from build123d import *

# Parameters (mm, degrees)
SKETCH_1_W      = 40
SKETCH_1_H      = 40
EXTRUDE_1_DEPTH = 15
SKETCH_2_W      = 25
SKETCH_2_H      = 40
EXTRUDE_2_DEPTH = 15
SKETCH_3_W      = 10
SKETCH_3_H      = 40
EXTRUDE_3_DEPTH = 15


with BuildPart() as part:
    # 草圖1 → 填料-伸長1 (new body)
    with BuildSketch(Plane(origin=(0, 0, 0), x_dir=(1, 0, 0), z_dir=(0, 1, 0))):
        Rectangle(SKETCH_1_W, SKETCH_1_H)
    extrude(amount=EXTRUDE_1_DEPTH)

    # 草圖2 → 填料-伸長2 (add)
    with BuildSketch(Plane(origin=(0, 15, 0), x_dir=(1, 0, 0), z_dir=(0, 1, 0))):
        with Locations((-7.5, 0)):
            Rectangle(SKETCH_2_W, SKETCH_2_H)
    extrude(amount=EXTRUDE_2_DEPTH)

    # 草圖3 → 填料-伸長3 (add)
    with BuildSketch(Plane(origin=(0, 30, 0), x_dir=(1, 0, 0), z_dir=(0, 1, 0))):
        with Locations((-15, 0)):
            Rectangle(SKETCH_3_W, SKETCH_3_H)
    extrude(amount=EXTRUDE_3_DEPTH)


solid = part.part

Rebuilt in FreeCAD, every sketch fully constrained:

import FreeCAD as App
import Part
import Sketcher

doc = App.newDocument("Part")
body = doc.addObject("PartDesign::Body", "Body")

# Sketch on XZ plane
sketch1 = doc.addObject("Sketcher::SketchObject", "Sketch")
body.addObject(sketch1)
sketch1.AttachmentSupport = (doc.XZ_Plane, [""])
sketch1.MapMode = "FlatFace"
sketch1.addGeometry(Part.LineSegment(App.Vector(-20, -20, 0), App.Vector(-20, 20, 0)), False)
sketch1.addGeometry(Part.LineSegment(App.Vector(-20, 20, 0), App.Vector(20, 20, 0)), False)
sketch1.addGeometry(Part.LineSegment(App.Vector(20, 20, 0), App.Vector(20, -20, 0)), False)
sketch1.addGeometry(Part.LineSegment(App.Vector(20, -20, 0), App.Vector(-20, -20, 0)), False)
sketch1.addConstraint(Sketcher.Constraint("Coincident", 0, 2, 1, 1))
sketch1.addConstraint(Sketcher.Constraint("Coincident", 1, 2, 2, 1))
sketch1.addConstraint(Sketcher.Constraint("Coincident", 2, 2, 3, 1))
sketch1.addConstraint(Sketcher.Constraint("Coincident", 3, 2, 0, 1))
sketch1.addConstraint(Sketcher.Constraint("Vertical", 0))
sketch1.addConstraint(Sketcher.Constraint("Horizontal", 1))
sketch1.addConstraint(Sketcher.Constraint("Vertical", 2))
sketch1.addConstraint(Sketcher.Constraint("Horizontal", 3))
sketch1.addConstraint(Sketcher.Constraint("Symmetric", 0, 2, 2, 2, -1, 1))
sketch1.addConstraint(Sketcher.Constraint("Equal", 3, 0))
sketch1.addConstraint(Sketcher.Constraint("DistanceX", 1, 1, 1, 2, 40.0))
pad1 = doc.addObject("PartDesign::Pad", "Pad")
body.addObject(pad1)
pad1.Profile = sketch1
pad1.Length = 15
pad1.Reversed = True

# Sketch on XZ plane
sketch2 = doc.addObject("Sketcher::SketchObject", "Sketch001")
body.addObject(sketch2)
sketch2.AttachmentSupport = (doc.XZ_Plane, [""])
sketch2.MapMode = "FlatFace"
sketch2.AttachmentOffset = App.Placement(App.Vector(0, 0, -15), App.Rotation())
sketch2.addGeometry(Part.LineSegment(App.Vector(-20, -20, 0), App.Vector(-20, 20, 0)), False)
sketch2.addGeometry(Part.LineSegment(App.Vector(-20, 20, 0), App.Vector(5, 20, 0)), False)
sketch2.addGeometry(Part.LineSegment(App.Vector(5, 20, 0), App.Vector(5, -20, 0)), False)
sketch2.addGeometry(Part.LineSegment(App.Vector(5, -20, 0), App.Vector(-20, -20, 0)), False)
sketch2.addConstraint(Sketcher.Constraint("Coincident", 0, 2, 1, 1))
sketch2.addConstraint(Sketcher.Constraint("Coincident", 1, 2, 2, 1))
sketch2.addConstraint(Sketcher.Constraint("Coincident", 2, 2, 3, 1))
sketch2.addConstraint(Sketcher.Constraint("Coincident", 3, 2, 0, 1))
sketch2.addConstraint(Sketcher.Constraint("Vertical", 0))
sketch2.addConstraint(Sketcher.Constraint("Horizontal", 1))
sketch2.addConstraint(Sketcher.Constraint("Vertical", 2))
sketch2.addConstraint(Sketcher.Constraint("Horizontal", 3))
sketch2.addConstraint(Sketcher.Constraint("DistanceX", 1, 1, 1, 2, 25.0))
sketch2.addConstraint(Sketcher.Constraint("DistanceY", 0, 1, 0, 2, 40.0))
sketch2.addConstraint(Sketcher.Constraint("DistanceX", 0, 2, -1, 1, 20.0))
sketch2.addConstraint(Sketcher.Constraint("DistanceY", -1, 1, 0, 2, 20.0))
pad2 = doc.addObject("PartDesign::Pad", "Pad001")
body.addObject(pad2)
pad2.Profile = sketch2
pad2.Length = 15
pad2.Reversed = True

# Sketch on XZ plane
sketch3 = doc.addObject("Sketcher::SketchObject", "Sketch002")
body.addObject(sketch3)
sketch3.AttachmentSupport = (doc.XZ_Plane, [""])
sketch3.MapMode = "FlatFace"
sketch3.AttachmentOffset = App.Placement(App.Vector(0, 0, -30), App.Rotation())
sketch3.addGeometry(Part.LineSegment(App.Vector(-20, -20, 0), App.Vector(-20, 20, 0)), False)
sketch3.addGeometry(Part.LineSegment(App.Vector(-20, 20, 0), App.Vector(-10, 20, 0)), False)
sketch3.addGeometry(Part.LineSegment(App.Vector(-10, 20, 0), App.Vector(-10, -20, 0)), False)
sketch3.addGeometry(Part.LineSegment(App.Vector(-10, -20, 0), App.Vector(-20, -20, 0)), False)
sketch3.addConstraint(Sketcher.Constraint("Coincident", 0, 2, 1, 1))
sketch3.addConstraint(Sketcher.Constraint("Coincident", 1, 2, 2, 1))
sketch3.addConstraint(Sketcher.Constraint("Coincident", 2, 2, 3, 1))
sketch3.addConstraint(Sketcher.Constraint("Coincident", 3, 2, 0, 1))
sketch3.addConstraint(Sketcher.Constraint("Vertical", 0))
sketch3.addConstraint(Sketcher.Constraint("Horizontal", 1))
sketch3.addConstraint(Sketcher.Constraint("Vertical", 2))
sketch3.addConstraint(Sketcher.Constraint("Horizontal", 3))
sketch3.addConstraint(Sketcher.Constraint("DistanceX", 1, 1, 1, 2, 10.0))
sketch3.addConstraint(Sketcher.Constraint("DistanceY", 0, 1, 0, 2, 40.0))
sketch3.addConstraint(Sketcher.Constraint("DistanceX", 0, 2, -1, 1, 20.0))
sketch3.addConstraint(Sketcher.Constraint("DistanceY", -1, 1, 0, 2, 20.0))
pad3 = doc.addObject("PartDesign::Pad", "Pad002")
body.addObject(pad3)
pad3.Profile = sketch3
pad3.Length = 15
pad3.Reversed = True

doc.recompute()
